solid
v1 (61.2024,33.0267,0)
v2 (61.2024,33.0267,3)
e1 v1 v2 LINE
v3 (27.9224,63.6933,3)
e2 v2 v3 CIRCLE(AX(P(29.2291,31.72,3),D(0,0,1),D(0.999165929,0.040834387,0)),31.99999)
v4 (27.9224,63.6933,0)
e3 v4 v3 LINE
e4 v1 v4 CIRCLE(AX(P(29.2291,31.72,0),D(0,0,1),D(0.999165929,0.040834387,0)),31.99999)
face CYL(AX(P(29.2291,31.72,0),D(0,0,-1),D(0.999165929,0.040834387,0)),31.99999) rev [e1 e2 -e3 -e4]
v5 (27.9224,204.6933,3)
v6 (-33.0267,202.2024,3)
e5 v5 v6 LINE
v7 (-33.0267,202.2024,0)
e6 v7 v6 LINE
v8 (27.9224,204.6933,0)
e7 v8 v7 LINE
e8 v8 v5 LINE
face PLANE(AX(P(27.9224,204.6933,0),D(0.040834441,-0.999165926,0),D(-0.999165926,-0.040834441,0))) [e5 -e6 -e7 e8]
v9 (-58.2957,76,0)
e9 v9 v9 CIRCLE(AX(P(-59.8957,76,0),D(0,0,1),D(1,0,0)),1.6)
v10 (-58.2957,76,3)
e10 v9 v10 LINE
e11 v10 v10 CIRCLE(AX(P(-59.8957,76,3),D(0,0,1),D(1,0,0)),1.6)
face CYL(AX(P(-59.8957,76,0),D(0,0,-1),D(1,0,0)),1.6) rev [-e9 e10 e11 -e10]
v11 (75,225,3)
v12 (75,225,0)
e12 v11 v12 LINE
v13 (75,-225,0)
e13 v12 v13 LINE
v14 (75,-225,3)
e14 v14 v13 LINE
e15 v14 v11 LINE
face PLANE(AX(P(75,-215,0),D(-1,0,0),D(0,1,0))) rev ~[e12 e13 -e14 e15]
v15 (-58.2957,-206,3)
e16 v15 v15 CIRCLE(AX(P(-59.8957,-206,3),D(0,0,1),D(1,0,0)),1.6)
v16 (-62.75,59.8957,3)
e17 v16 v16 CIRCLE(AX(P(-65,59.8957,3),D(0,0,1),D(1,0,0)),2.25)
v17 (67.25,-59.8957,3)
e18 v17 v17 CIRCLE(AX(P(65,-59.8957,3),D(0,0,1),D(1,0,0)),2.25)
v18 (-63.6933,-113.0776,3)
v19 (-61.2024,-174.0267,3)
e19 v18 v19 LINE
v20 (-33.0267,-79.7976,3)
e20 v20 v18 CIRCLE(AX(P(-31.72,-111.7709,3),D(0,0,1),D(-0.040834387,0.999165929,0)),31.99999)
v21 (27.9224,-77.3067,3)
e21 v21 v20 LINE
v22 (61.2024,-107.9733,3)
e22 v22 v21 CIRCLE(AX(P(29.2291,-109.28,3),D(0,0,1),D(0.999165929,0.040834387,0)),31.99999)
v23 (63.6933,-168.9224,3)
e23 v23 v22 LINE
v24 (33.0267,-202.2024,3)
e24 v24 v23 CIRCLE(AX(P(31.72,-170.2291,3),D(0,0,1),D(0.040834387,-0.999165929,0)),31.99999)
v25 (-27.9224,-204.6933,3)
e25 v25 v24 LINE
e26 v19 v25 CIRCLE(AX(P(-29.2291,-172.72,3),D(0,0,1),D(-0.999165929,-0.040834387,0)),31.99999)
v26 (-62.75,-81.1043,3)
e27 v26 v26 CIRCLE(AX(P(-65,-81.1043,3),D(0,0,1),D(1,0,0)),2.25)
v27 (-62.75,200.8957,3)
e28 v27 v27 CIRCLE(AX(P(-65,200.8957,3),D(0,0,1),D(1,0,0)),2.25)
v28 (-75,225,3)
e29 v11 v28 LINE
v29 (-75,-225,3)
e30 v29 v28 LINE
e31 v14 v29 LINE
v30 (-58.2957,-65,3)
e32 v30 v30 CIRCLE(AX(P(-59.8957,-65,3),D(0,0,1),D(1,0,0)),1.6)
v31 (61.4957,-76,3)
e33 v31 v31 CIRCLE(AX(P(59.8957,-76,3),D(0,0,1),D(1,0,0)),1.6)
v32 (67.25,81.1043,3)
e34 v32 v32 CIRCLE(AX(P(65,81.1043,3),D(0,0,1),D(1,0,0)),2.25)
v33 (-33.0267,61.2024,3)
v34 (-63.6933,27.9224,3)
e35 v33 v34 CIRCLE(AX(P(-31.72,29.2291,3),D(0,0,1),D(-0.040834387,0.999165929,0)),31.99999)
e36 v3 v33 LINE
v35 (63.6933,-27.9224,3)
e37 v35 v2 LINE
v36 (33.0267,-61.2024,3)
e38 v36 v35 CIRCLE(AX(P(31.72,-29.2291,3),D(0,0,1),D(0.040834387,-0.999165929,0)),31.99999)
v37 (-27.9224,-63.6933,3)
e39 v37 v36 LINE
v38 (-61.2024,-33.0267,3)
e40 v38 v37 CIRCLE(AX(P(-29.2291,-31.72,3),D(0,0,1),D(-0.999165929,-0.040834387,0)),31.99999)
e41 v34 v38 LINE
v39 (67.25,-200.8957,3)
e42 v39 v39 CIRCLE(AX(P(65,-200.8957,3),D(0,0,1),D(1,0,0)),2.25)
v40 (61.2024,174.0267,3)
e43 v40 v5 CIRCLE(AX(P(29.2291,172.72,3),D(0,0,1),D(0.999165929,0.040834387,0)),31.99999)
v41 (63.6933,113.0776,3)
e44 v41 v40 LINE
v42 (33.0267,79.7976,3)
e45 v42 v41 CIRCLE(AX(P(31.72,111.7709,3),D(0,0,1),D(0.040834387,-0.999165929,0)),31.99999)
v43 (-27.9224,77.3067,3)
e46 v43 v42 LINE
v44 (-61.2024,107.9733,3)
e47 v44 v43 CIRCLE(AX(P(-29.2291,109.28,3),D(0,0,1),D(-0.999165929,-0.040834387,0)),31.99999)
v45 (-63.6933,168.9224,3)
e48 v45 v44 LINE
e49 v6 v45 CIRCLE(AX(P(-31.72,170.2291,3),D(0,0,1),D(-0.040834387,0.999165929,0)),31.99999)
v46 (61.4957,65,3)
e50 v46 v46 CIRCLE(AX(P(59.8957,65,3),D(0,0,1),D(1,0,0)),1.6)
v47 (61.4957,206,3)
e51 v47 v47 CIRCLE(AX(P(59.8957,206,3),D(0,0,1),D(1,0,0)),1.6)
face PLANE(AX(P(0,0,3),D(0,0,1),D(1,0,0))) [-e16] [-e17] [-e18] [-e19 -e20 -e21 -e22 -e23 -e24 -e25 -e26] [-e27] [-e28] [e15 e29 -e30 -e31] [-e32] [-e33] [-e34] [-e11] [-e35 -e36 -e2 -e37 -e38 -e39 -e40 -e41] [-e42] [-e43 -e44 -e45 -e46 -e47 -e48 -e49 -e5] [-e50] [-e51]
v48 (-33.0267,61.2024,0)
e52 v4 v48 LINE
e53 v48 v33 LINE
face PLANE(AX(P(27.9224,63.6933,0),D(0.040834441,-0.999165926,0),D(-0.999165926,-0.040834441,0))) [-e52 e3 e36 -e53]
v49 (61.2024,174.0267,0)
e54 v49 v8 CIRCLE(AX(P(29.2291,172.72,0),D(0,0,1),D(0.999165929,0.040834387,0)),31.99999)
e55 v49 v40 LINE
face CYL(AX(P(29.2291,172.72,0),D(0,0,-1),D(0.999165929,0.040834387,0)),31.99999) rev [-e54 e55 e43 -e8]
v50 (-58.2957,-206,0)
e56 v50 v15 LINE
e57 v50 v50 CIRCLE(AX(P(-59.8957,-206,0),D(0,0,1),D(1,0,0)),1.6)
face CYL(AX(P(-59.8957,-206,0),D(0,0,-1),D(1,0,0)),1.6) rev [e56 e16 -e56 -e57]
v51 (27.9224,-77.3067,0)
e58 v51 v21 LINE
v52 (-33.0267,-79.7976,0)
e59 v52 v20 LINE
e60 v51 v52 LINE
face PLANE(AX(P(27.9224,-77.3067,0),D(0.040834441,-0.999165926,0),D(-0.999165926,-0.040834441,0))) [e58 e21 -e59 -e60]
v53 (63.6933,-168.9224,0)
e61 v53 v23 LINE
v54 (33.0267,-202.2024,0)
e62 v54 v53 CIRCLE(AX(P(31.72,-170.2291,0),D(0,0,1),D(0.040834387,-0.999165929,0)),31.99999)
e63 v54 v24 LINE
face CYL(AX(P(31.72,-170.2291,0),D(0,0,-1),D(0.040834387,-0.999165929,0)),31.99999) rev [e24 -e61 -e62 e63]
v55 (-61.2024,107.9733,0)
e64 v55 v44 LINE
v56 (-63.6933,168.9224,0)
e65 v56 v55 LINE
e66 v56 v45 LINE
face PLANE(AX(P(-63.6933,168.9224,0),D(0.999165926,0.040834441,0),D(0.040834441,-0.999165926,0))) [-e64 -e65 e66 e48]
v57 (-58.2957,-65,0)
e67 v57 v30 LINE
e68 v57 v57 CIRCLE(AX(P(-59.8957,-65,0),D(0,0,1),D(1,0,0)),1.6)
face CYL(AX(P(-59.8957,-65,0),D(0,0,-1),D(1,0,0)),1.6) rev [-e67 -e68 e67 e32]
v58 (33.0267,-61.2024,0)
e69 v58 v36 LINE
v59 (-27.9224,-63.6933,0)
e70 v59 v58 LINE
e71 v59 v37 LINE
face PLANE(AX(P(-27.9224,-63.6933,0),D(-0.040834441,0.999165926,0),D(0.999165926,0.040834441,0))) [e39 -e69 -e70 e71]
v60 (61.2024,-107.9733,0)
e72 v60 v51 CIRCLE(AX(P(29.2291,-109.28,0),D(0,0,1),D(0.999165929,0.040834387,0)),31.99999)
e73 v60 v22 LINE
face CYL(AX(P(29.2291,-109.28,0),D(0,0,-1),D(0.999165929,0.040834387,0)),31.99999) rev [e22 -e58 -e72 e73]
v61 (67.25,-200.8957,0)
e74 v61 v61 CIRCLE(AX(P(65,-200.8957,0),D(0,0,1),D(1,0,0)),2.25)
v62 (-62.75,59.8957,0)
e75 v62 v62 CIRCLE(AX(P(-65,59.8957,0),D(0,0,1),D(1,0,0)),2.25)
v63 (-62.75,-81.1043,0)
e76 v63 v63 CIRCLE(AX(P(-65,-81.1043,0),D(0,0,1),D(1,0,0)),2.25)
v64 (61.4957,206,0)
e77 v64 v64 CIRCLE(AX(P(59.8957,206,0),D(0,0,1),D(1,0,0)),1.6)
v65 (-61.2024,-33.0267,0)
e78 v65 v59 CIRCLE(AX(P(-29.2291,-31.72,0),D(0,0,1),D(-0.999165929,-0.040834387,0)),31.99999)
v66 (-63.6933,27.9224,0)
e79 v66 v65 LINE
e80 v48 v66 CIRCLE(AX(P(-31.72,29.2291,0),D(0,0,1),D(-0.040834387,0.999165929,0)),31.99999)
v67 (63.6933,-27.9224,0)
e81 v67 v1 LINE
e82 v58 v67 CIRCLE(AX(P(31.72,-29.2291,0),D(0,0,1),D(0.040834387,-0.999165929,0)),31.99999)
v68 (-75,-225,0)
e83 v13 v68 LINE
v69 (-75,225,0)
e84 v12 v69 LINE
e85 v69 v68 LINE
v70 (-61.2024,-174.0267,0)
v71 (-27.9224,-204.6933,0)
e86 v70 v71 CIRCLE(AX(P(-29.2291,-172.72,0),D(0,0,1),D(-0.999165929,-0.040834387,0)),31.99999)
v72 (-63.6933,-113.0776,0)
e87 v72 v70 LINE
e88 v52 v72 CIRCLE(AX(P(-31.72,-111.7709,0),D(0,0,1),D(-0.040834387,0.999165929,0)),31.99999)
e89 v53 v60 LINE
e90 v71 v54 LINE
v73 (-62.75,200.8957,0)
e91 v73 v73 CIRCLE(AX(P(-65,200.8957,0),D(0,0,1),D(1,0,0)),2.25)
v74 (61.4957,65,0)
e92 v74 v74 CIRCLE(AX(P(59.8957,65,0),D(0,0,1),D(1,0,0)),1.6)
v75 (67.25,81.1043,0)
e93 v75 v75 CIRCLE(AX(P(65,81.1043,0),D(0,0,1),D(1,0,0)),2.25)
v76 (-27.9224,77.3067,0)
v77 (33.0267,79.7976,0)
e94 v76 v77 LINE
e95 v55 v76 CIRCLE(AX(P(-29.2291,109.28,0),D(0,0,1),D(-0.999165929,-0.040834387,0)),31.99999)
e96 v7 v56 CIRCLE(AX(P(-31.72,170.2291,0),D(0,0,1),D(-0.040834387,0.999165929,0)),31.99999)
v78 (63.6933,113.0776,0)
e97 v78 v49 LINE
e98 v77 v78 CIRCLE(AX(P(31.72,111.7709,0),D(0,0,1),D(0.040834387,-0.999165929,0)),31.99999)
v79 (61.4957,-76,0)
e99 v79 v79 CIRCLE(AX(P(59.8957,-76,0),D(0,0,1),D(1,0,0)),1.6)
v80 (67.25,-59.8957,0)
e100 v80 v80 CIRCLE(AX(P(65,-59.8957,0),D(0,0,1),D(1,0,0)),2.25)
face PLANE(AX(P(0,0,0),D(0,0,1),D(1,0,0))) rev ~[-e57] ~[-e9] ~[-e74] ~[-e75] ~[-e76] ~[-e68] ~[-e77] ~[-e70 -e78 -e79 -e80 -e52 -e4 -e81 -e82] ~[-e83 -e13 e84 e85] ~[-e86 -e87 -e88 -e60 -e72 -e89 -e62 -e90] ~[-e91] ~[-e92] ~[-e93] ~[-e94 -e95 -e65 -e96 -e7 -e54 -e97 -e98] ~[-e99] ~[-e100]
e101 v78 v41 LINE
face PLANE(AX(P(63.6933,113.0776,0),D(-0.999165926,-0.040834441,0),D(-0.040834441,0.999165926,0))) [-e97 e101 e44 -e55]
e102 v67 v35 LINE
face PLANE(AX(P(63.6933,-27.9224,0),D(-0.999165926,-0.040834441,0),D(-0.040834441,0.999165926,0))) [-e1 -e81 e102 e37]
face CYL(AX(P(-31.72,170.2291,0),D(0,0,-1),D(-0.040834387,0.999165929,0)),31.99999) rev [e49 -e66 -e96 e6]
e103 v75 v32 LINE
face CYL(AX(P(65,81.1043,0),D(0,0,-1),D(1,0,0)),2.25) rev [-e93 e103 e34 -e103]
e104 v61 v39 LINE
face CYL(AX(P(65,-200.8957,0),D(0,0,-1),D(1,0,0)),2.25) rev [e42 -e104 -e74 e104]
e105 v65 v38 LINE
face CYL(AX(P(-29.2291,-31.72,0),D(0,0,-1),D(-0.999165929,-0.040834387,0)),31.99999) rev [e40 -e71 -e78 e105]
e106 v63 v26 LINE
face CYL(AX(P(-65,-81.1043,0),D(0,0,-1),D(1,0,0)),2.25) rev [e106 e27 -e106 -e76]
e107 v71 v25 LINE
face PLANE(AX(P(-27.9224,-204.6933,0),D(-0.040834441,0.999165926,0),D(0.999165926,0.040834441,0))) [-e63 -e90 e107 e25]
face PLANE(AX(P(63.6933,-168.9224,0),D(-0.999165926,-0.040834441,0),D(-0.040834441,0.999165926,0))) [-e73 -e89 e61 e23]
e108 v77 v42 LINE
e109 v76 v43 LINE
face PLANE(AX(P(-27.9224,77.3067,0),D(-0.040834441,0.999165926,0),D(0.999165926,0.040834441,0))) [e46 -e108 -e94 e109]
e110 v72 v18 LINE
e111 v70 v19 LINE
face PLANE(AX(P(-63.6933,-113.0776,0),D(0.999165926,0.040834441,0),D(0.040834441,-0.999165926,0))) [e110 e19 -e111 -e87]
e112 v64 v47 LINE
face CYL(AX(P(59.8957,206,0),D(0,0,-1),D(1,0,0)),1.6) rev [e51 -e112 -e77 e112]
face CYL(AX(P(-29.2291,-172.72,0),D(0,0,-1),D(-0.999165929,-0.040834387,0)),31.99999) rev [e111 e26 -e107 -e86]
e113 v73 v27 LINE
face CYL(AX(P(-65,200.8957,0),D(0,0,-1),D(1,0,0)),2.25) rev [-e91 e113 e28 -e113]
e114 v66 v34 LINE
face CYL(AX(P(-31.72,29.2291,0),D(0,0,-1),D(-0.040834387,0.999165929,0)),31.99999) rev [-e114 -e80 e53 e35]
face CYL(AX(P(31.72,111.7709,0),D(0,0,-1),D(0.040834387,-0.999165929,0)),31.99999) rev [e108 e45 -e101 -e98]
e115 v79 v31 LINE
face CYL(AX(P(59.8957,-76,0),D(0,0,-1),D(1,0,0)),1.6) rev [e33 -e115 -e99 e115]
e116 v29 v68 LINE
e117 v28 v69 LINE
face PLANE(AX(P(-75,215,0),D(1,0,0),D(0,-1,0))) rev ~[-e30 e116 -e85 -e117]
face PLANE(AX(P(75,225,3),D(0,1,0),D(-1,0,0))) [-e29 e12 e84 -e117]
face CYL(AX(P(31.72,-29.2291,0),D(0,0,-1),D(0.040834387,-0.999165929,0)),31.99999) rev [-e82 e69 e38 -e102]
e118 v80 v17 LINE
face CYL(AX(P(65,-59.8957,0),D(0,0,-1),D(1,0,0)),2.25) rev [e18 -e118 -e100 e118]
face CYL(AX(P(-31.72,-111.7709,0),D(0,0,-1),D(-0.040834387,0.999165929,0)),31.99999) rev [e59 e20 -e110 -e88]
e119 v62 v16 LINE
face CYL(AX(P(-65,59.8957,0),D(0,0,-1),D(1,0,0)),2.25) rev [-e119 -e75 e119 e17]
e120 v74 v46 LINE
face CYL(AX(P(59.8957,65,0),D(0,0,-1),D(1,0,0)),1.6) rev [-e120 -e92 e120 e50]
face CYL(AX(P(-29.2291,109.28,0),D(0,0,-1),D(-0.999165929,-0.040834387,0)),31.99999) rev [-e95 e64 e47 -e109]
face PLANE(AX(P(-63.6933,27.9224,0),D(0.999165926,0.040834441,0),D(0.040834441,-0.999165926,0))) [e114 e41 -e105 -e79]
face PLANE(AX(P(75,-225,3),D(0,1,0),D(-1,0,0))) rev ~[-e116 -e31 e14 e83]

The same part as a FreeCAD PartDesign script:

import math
import FreeCAD as App
import Part
import Sketcher
from FreeCAD import Vector
Q = App.Units.Quantity


def add_polygon(sketch, points):
    """Adds a closed chain of lines whose ends are joined by coincident constraints."""
    first, n = sketch.GeometryCount, len(points)
    for a, b in zip(points, points[1:] + points[:1]):
        sketch.addGeometry(Part.LineSegment(App.Vector(*a, 0), App.Vector(*b, 0)), False)
    for i in range(n):
        sketch.addConstraint(Sketcher.Constraint("Coincident", first + i, 2, first + (i + 1) % n, 1))

doc = App.newDocument("Part")
body = doc.addObject("PartDesign::Body", "Body")

# Sketch on XY plane
sketch1 = doc.addObject("Sketcher::SketchObject", "Sketch")
body.addObject(sketch1)
sketch1.AttachmentSupport = (doc.XY_Plane, [""])
sketch1.MapMode = "FlatFace"
add_polygon(sketch1, [(-75, 215), (-75, -215), (75, -215), (75, 215)])  # lines 0-3
sketch1.addGeometry(Part.Circle(Vector(-59.9, -206, 0), Vector(0, 0, 1), 1.6), False)  # 4
sketch1.addGeometry(Part.Circle(Vector(-65, -81.1, 0), Vector(0, 0, 1), 2.2), False)  # 5
sketch1.addGeometry(Part.Circle(Vector(-59.9, -65, 0), Vector(0, 0, 1), 1.6), False)  # 6
sketch1.addGeometry(Part.ArcOfCircle(Part.Circle(Vector(29.2, -109.3, 0), Vector(0, 0, 1), 32), math.radians(2), math.radians(92)), False)  # 7
sketch1.addGeometry(Part.LineSegment(Vector(61.2, -108, 0), Vector(63.7, -168.9, 0)), False)  # 8
sketch1.addGeometry(Part.ArcOfCircle(Part.Circle(Vector(31.7, -170.2, 0), Vector(0, 0, 1), 32), math.radians(-88), math.radians(2)), False)  # 9
sketch1.addGeometry(Part.LineSegment(Vector(33, -202.2, 0), Vector(-27.9, -204.7, 0)), False)  # 10
sketch1.addGeometry(Part.ArcOfCircle(Part.Circle(Vector(-29.2, -172.7, 0), Vector(0, 0, 1), 32), math.radians(-178), math.radians(-88)), False)  # 11
sketch1.addGeometry(Part.LineSegment(Vector(-61.2, -174, 0), Vector(-63.7, -113.1, 0)), False)  # 12
sketch1.addGeometry(Part.ArcOfCircle(Part.Circle(Vector(-31.7, -111.8, 0), Vector(0, 0, 1), 32), math.radians(92), math.radians(182)), False)  # 13
sketch1.addGeometry(Part.LineSegment(Vector(-33, -79.8, 0), Vector(27.9, -77.3, 0)), False)  # 14
sketch1.addGeometry(Part.Circle(Vector(65, -200.9, 0), Vector(0, 0, 1), 2.2), False)  # 15
sketch1.addGeometry(Part.Circle(Vector(59.9, -76, 0), Vector(0, 0, 1), 1.6), False)  # 16
sketch1.addGeometry(Part.Circle(Vector(65, -59.9, 0), Vector(0, 0, 1), 2.2), False)  # 17
sketch1.addGeometry(Part.Circle(Vector(-65, 59.9, 0), Vector(0, 0, 1), 2.2), False)  # 18
sketch1.addGeometry(Part.Circle(Vector(-59.9, 76, 0), Vector(0, 0, 1), 1.6), False)  # 19
sketch1.addGeometry(Part.Circle(Vector(-65, 200.9, 0), Vector(0, 0, 1), 2.2), False)  # 20
sketch1.addGeometry(Part.LineSegment(Vector(-61.2, -33, 0), Vector(-63.7, 27.9, 0)), False)  # 21
sketch1.addGeometry(Part.ArcOfCircle(Part.Circle(Vector(-31.7, 29.2, 0), Vector(0, 0, 1), 32), math.radians(92), math.radians(182)), False)  # 22
sketch1.addGeometry(Part.LineSegment(Vector(-33, 61.2, 0), Vector(27.9, 63.7, 0)), False)  # 23
sketch1.addGeometry(Part.ArcOfCircle(Part.Circle(Vector(29.2, 31.7, 0), Vector(0, 0, 1), 32), math.radians(2), math.radians(92)), False)  # 24
sketch1.addGeometry(Part.LineSegment(Vector(61.2, 33, 0), Vector(63.7, -27.9, 0)), False)  # 25
sketch1.addGeometry(Part.ArcOfCircle(Part.Circle(Vector(31.7, -29.2, 0), Vector(0, 0, 1), 32), math.radians(-88), math.radians(2)), False)  # 26
sketch1.addGeometry(Part.LineSegment(Vector(33, -61.2, 0), Vector(-27.9, -63.7, 0)), False)  # 27
sketch1.addGeometry(Part.ArcOfCircle(Part.Circle(Vector(-29.2, -31.7, 0), Vector(0, 0, 1), 32), math.radians(-178), math.radians(-88)), False)  # 28
sketch1.addGeometry(Part.Circle(Vector(59.9, 65, 0), Vector(0, 0, 1), 1.6), False)  # 29
sketch1.addGeometry(Part.Circle(Vector(65, 81.1, 0), Vector(0, 0, 1), 2.2), False)  # 30
sketch1.addGeometry(Part.ArcOfCircle(Part.Circle(Vector(29.2, 172.7, 0), Vector(0, 0, 1), 32), math.radians(2), math.radians(92)), False)  # 31
sketch1.addGeometry(Part.LineSegment(Vector(61.2, 174, 0), Vector(63.7, 113.1, 0)), False)  # 32
sketch1.addGeometry(Part.ArcOfCircle(Part.Circle(Vector(31.7, 111.8, 0), Vector(0, 0, 1), 32), math.radians(-88), math.radians(2)), False)  # 33
sketch1.addGeometry(Part.LineSegment(Vector(33, 79.8, 0), Vector(-27.9, 77.3, 0)), False)  # 34
sketch1.addGeometry(Part.ArcOfCircle(Part.Circle(Vector(-29.2, 109.3, 0), Vector(0, 0, 1), 32), math.radians(-178), math.radians(-88)), False)  # 35
sketch1.addGeometry(Part.LineSegment(Vector(-61.2, 108, 0), Vector(-63.7, 168.9, 0)), False)  # 36
sketch1.addGeometry(Part.ArcOfCircle(Part.Circle(Vector(-31.7, 170.2, 0), Vector(0, 0, 1), 32), math.radians(92), math.radians(182)), False)  # 37
sketch1.addGeometry(Part.LineSegment(Vector(-33, 202.2, 0), Vector(27.9, 204.7, 0)), False)  # 38
sketch1.addGeometry(Part.Circle(Vector(59.9, 206, 0), Vector(0, 0, 1), 1.6), False)  # 39
sketch1.addConstraint([
    Sketcher.Constraint("Tangent", 7, 1, 8, 1),
    Sketcher.Constraint("Tangent", 8, 2, 9, 2),
    Sketcher.Constraint("Tangent", 9, 1, 10, 1),
    Sketcher.Constraint("Tangent", 10, 2, 11, 2),
    Sketcher.Constraint("Tangent", 11, 1, 12, 1),
    Sketcher.Constraint("Tangent", 12, 2, 13, 2),
    Sketcher.Constraint("Tangent", 13, 1, 14, 1),
    Sketcher.Constraint("Tangent", 14, 2, 7, 2),
    Sketcher.Constraint("Tangent", 21, 2, 22, 2),
    Sketcher.Constraint("Tangent", 22, 1, 23, 1),
    Sketcher.Constraint("Tangent", 23, 2, 24, 2),
    Sketcher.Constraint("Tangent", 24, 1, 25, 1),
    Sketcher.Constraint("Tangent", 25, 2, 26, 2),
    Sketcher.Constraint("Tangent", 26, 1, 27, 1),
    Sketcher.Constraint("Tangent", 27, 2, 28, 2),
    Sketcher.Constraint("Tangent", 28, 1, 21, 1),
    Sketcher.Constraint("Tangent", 31, 1, 32, 1),
    Sketcher.Constraint("Tangent", 32, 2, 33, 2),
    Sketcher.Constraint("Tangent", 33, 1, 34, 1),
    Sketcher.Constraint("Tangent", 34, 2, 35, 2),
    Sketcher.Constraint("Tangent", 35, 1, 36, 1),
    Sketcher.Constraint("Tangent", 36, 2, 37, 2),
    Sketcher.Constraint("Tangent", 37, 1, 38, 1),
    Sketcher.Constraint("Tangent", 38, 2, 31, 2),
    Sketcher.Constraint("Vertical", 0),
    Sketcher.Constraint("Horizontal", 1),
    Sketcher.Constraint("Vertical", 2),
    Sketcher.Constraint("Horizontal", 3),
    Sketcher.Constraint("Equal", 4, 6),
    Sketcher.Constraint("Equal", 7, 9),
    Sketcher.Constraint("Equal", 9, 11),
    Sketcher.Constraint("Equal", 11, 13),
    Sketcher.Constraint("Equal", 5, 15),
    Sketcher.Constraint("Equal", 6, 16),
    Sketcher.Constraint("Equal", 15, 17),
    Sketcher.Constraint("Equal", 17, 18),
    Sketcher.Constraint("Equal", 16, 19),
    Sketcher.Constraint("Equal", 18, 20),
    Sketcher.Constraint("Equal", 13, 22),
    Sketcher.Constraint("Equal", 22, 24),
    Sketcher.Constraint("Equal", 24, 26),
    Sketcher.Constraint("Equal", 26, 28),
    Sketcher.Constraint("Equal", 19, 29),
    Sketcher.Constraint("Equal", 20, 30),
    Sketcher.Constraint("Equal", 28, 31),
    Sketcher.Constraint("Equal", 31, 33),
    Sketcher.Constraint("Equal", 33, 35),
    Sketcher.Constraint("Equal", 35, 37),
    Sketcher.Constraint("Equal", 29, 39),
    Sketcher.Constraint("Symmetric", 17, 3, 18, 3, -1, 1),
    Sketcher.Constraint("Symmetric", 16, 3, 19, 3, -1, 1),
    Sketcher.Constraint("Symmetric", 15, 3, 20, 3, -1, 1),
    Sketcher.Constraint("Symmetric", 22, 3, 26, 3, -1, 1),
    Sketcher.Constraint("Symmetric", 24, 3, 28, 3, -1, 1),
    Sketcher.Constraint("Symmetric", 6, 3, 29, 3, -1, 1),
    Sketcher.Constraint("Symmetric", 5, 3, 30, 3, -1, 1),
    Sketcher.Constraint("Symmetric", 11, 3, 31, 3, -1, 1),
    Sketcher.Constraint("Symmetric", 13, 3, 33, 3, -1, 1),
    Sketcher.Constraint("Symmetric", 7, 3, 35, 3, -1, 1),
    Sketcher.Constraint("Symmetric", 9, 3, 37, 3, -1, 1),
    Sketcher.Constraint("Symmetric", 4, 3, 39, 3, -1, 1),
    Sketcher.Constraint("Symmetric", 0, 2, 2, 2, -1, 1),
    Sketcher.Constraint("Perpendicular", 8, 10),
    Sketcher.Constraint("Perpendicular", 10, 12),
    Sketcher.Constraint("Perpendicular", 12, 14),
    Sketcher.Constraint("Perpendicular", 14, 21),
    Sketcher.Constraint("Perpendicular", 21, 23),
    Sketcher.Constraint("Vertical", 4, 3, 6, 3),
    Sketcher.Constraint("Vertical", 15, 3, 17, 3),
    Sketcher.Constraint("Vertical", 5, 3, 18, 3),
    Sketcher.Constraint("Vertical", 6, 3, 19, 3),
    Sketcher.Constraint("Vertical", 13, 3, 22, 3),
    Sketcher.Constraint("Vertical", 7, 3, 24, 3),
    Sketcher.Constraint("Vertical", 9, 3, 26, 3),
    Sketcher.Constraint("Equal", 8, 10),
    Sketcher.Constraint("Radius", 7, Q("32 mm")),
    Sketcher.Constraint("Diameter", 4, Q("3.2 mm")),
    Sketcher.Constraint("Diameter", 5, Q("4.5 mm")),
    Sketcher.Constraint("DistanceX", 1, 1, 1, 2, Q("150 mm")),
    Sketcher.Constraint("DistanceY", 0, 2, 0, 1, Q("430 mm")),
    Sketcher.Constraint("DistanceX", 5, 3, -1, 1, Q("65 mm")),
    Sketcher.Constraint("DistanceY", 6, 3, -1, 1, Q("65 mm")),
    Sketcher.Constraint("DistanceY", 4, 3, 6, 3, Q("141 mm")),
    Sketcher.Constraint("DistanceY", 5, 3, 18, 3, Q("141 mm")),
    Sketcher.Constraint("DistanceY", 6, 3, 19, 3, Q("141 mm")),
    Sketcher.Constraint("DistanceY", 18, 3, 20, 3, Q("141 mm")),
    Sketcher.Constraint("DistanceY", 24, 3, 31, 3, Q("141 mm")),
    Sketcher.Constraint("Distance", 8, Q("61 mm")),
    Sketcher.Constraint("Angle", 8, Q("-87.6597 deg")),
    Sketcher.Constraint("DistanceX", 6, 3, 13, 1, Q("26.869 mm")),
    Sketcher.Constraint("DistanceY", 14, 2, 17, 3, Q("17.411 mm")),
])
pad1 = doc.addObject("PartDesign::Pad", "Pad")
body.addObject(pad1)
pad1.Profile = sketch1
pad1.Length = 3

# Sketch on XY plane
sketch2 = doc.addObject("Sketcher::SketchObject", "Sketch001")
body.addObject(sketch2)
sketch2.AttachmentSupport = (doc.XY_Plane, [""])
sketch2.MapMode = "FlatFace"
sketch2.AttachmentOffset = App.Placement(Vector(0, 0, 3), App.Rotation())
add_polygon(sketch2, [(-75, 225), (-75, 215), (75, 215), (75, 225)])  # lines 0-3
add_polygon(sketch2, [(75, -215), (-75, -215), (-75, -225), (75, -225)])  # lines 4-7
sketch2.addConstraint([
    Sketcher.Constraint("Vertical", 0),
    Sketcher.Constraint("Horizontal", 1),
    Sketcher.Constraint("Vertical", 2),
    Sketcher.Constraint("Horizontal", 3),
    Sketcher.Constraint("Horizontal", 4),
    Sketcher.Constraint("Vertical", 5),
    Sketcher.Constraint("Horizontal", 6),
    Sketcher.Constraint("Vertical", 7),
    Sketcher.Constraint("Symmetric", 1, 2, 4, 2, -1, 1),
    Sketcher.Constraint("Symmetric", 3, 2, 6, 2, -1, 1),
    Sketcher.Constraint("Vertical", 3, 2, 4, 2),
    Sketcher.Constraint("DistanceY", 0, 2, 0, 1, Q("10 mm")),
    Sketcher.Constraint("DistanceX", 1, 1, 1, 2, Q("150 mm")),
    Sketcher.Constraint("DistanceY", -1, 1, 0, 2, Q("215 mm")),
])
pad2 = doc.addObject("PartDesign::Pad", "Pad001")
body.addObject(pad2)
pad2.Profile = sketch2
pad2.Length = 3
pad2.Reversed = True

doc.recompute()
